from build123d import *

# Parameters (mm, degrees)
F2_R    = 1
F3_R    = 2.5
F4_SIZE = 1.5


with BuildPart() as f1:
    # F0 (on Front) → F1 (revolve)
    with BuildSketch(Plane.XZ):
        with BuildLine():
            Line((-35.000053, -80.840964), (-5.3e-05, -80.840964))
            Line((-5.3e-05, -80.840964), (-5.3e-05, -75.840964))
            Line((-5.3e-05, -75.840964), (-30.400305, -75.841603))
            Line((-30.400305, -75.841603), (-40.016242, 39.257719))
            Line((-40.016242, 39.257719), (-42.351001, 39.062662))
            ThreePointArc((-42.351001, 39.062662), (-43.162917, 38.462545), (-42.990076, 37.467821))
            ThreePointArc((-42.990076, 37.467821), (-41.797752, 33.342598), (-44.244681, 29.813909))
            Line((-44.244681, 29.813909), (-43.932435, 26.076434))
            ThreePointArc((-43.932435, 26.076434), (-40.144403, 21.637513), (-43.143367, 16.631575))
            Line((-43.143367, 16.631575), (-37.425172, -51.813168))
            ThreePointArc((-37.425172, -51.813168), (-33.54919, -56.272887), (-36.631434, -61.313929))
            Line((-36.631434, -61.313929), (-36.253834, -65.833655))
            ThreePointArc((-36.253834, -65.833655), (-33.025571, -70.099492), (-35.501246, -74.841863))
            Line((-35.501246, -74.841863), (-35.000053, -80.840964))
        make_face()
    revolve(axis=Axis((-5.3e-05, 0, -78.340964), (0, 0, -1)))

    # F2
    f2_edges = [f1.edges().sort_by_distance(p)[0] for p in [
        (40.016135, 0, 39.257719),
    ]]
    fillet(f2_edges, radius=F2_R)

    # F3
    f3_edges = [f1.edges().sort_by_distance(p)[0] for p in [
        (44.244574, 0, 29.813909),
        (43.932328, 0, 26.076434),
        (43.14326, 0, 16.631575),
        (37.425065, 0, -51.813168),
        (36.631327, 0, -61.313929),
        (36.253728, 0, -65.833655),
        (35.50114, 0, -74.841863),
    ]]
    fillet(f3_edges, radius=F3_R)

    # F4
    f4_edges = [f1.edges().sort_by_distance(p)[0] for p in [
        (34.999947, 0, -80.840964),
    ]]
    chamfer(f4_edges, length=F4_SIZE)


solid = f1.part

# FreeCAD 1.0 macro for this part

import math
import FreeCAD as App
import Part
import Sketcher


def edges_at(feature, points):
    """Names of the edges that pass closest to the given points."""
    edges = feature.Shape.Edges
    near = lambda p: min(range(len(edges)), key=lambda i: edges[i].distToShape(Part.Vertex(*p))[0])
    return sorted({f"Edge{near(p) + 1}" for p in points})

doc = App.newDocument("Part")
body = doc.addObject("PartDesign::Body", "Body")

sketch1 = body.newObject("Sketcher::SketchObject", "Sketch")
sketch1.AttachmentSupport = (doc.getObject("XZ_Plane"), [""])
sketch1.MapMode = "FlatFace"
sketch1.addGeometry([
    Part.LineSegment(App.Vector(-35.000053, -80.840964, 0), App.Vector(-0.000053, -80.840964, 0)),
    Part.LineSegment(App.Vector(-0.000053, -80.840964, 0), App.Vector(-0.000053, -75.840964, 0)),
    Part.LineSegment(App.Vector(-0.000053, -75.840964, 0), App.Vector(-30.400305, -75.841603, 0)),
    Part.LineSegment(App.Vector(-30.400305, -75.841603, 0), App.Vector(-40.016242, 39.257719, 0)),
    Part.LineSegment(App.Vector(-40.016242, 39.257719, 0), App.Vector(-42.351001, 39.062662, 0)),
    Part.ArcOfCircle(Part.Circle(App.Vector(-42.271006, 38.105143, 0), App.Vector(0, 0, 1), 0.960855), math.radians(94.775637), math.radians(221.551036)),
    Part.ArcOfCircle(Part.Circle(App.Vector(-46.731906, 34.151388, 0), App.Vector(0, 0, 1), 5.000001), math.radians(-60.168908), math.radians(41.550991)),
    Part.LineSegment(App.Vector(-44.244681, 29.813909, 0), App.Vector(-43.932435, 26.076434, 0)),
    Part.ArcOfCircle(Part.Circle(App.Vector(-45.127045, 21.22124, 0), App.Vector(0, 0, 1), 5), math.radians(-66.625741), math.radians(76.177079)),
    Part.LineSegment(App.Vector(-43.143367, 16.631575, 0), App.Vector(-37.425172, -51.813168, 0)),
    Part.ArcOfCircle(Part.Circle(App.Vector(-38.531831, -56.68916, 0), App.Vector(0, 0, 1), 4.999999), math.radians(-67.661397), math.radians(77.212731)),
    Part.LineSegment(App.Vector(-36.631434, -61.313929, 0), App.Vector(-36.253834, -65.833655, 0)),
    Part.ArcOfCircle(Part.Circle(App.Vector(-38.008213, -70.515765, 0), App.Vector(0, 0, 1), 5), math.radians(-59.907775), math.radians(69.459111)),
    Part.LineSegment(App.Vector(-35.501246, -74.841863, 0), App.Vector(-35.000053, -80.840964, 0)),
], False)
sketch1.addGeometry(Part.LineSegment(App.Vector(-0.000053, 39.257719, 0), App.Vector(-0.000053, -80.840964, 0)), True)
sketch1.addConstraint([
    Sketcher.Constraint("Coincident", 0, 2, 1, 1),
    Sketcher.Constraint("Coincident", 1, 2, 2, 1),
    Sketcher.Constraint("Coincident", 2, 2, 3, 1),
    Sketcher.Constraint("Coincident", 3, 2, 4, 1),
    Sketcher.Constraint("Coincident", 4, 2, 5, 1),
    Sketcher.Constraint("Coincident", 5, 2, 6, 2),
    Sketcher.Constraint("Coincident", 6, 1, 7, 1),
    Sketcher.Constraint("Coincident", 7, 2, 8, 2),
    Sketcher.Constraint("Coincident", 8, 1, 9, 1),
    Sketcher.Constraint("Coincident", 9, 2, 10, 2),
    Sketcher.Constraint("Coincident", 10, 1, 11, 1),
    Sketcher.Constraint("Coincident", 11, 2, 12, 2),
    Sketcher.Constraint("Coincident", 12, 1, 13, 1),
    Sketcher.Constraint("Coincident", 13, 2, 0, 1),
    Sketcher.Constraint("Horizontal", 0),
    Sketcher.Constraint("Vertical", 1),
    Sketcher.Constraint("Vertical", 14),
    Sketcher.Constraint("Coincident", 14, 2, 0, 2),
    Sketcher.Constraint("Radius", 6, 5.000001),
    Sketcher.Constraint("Radius", 8, 5.0),
    Sketcher.Constraint("Radius", 10, 4.999999),
    Sketcher.Constraint("Radius", 12, 5.0),
    Sketcher.Constraint("DistanceX", 0, 1, 0, 2, 35.0),
    Sketcher.Constraint("DistanceY", 1, 1, 1, 2, 5.0),
    Sketcher.Constraint("Distance", 13, 6.020001),
    Sketcher.Constraint("DistanceX", 4, 2, -1, 1, 42.351001),
    Sketcher.Constraint("Radius", 5, 0.960855),
    Sketcher.Constraint("DistanceX", 6, 3, 5, 3, 4.4609),
    Sketcher.Constraint("DistanceY", 10, 3, 8, 3, 77.9104),
    Sketcher.Constraint("DistanceY", 0, 2, 12, 3, 10.325199),
    Sketcher.Constraint("DistanceY", 5, 2, 3, 2, 1.789898),
    Sketcher.Constraint("DistanceX", 10, 1, 11, 2, 0.3776),
    Sketcher.Constraint("DistanceY", 13, 2, 12, 1, 5.999101),
    Sketcher.Constraint("DistanceY", 5, 2, 14, 1, 1.789898),
    Sketcher.Constraint("Distance", 9, 68.68319),
    Sketcher.Constraint("Distance", 11, 4.535472),
    Sketcher.Constraint("DistanceY", 14, 2, 14, 1, 120.098683),
    Sketcher.Constraint("DistanceY", -1, 1, 6, 3, 34.151388),
    Sketcher.Constraint("DistanceY", -1, 1, 8, 3, 21.22124),
    Sketcher.Constraint("DistanceX", 10, 3, -1, 1, 38.531831),
    Sketcher.Constraint("DistanceX", 3, 2, -1, 1, 40.016242),
    Sketcher.Constraint("DistanceY", -1, 1, 3, 2, 39.257719),
    Sketcher.Constraint("DistanceX", 6, 1, -1, 1, 44.244681),
    Sketcher.Constraint("DistanceY", -1, 1, 6, 1, 29.813909),
    Sketcher.Constraint("DistanceY", 10, 1, -1, 1, 61.313929),
    Sketcher.Constraint("DistanceX", 6, 3, 8, 3, 1.604861),
    Sketcher.Constraint("DistanceX", 2, 2, 1, 2, 30.400252),
    Sketcher.Constraint("DistanceY", 2, 2, 1, 2, 0.000639),
    Sketcher.Constraint("DistanceX", 8, 3, 7, 2, 1.19461),
    Sketcher.Constraint("DistanceY", 8, 1, 7, 2, 9.444859),
])
revolution = body.newObject("PartDesign::Revolution", "Revolution")
revolution.Profile = sketch1
revolution.ReferenceAxis = (sketch1, ["Axis0"])
revolution.Angle = 360
doc.recompute()

fillet = body.newObject("PartDesign::Fillet", "Fillet")
fillet.Base = (revolution, edges_at(revolution, [(40.016, 0, 39.258)]))
fillet.Radius = 1
doc.recompute()

fillet2 = body.newObject("PartDesign::Fillet", "Fillet001")
fillet2.Base = (fillet, edges_at(fillet, [
    (44.245, 0, 29.814),
    (43.932, 0, 26.076),
    (43.143, 0, 16.632),
    (37.425, 0, -51.813),
    (36.631, 0, -61.314),
    (36.254, 0, -65.834),
    (35.501, 0, -74.842),
]))
fillet2.Radius = 2.5
doc.recompute()

chamfer = body.newObject("PartDesign::Chamfer", "Chamfer")
chamfer.Base = (fillet2, edges_at(fillet2, [(35, 0, -80.841)]))
chamfer.Size = 1.5

doc.recompute()
